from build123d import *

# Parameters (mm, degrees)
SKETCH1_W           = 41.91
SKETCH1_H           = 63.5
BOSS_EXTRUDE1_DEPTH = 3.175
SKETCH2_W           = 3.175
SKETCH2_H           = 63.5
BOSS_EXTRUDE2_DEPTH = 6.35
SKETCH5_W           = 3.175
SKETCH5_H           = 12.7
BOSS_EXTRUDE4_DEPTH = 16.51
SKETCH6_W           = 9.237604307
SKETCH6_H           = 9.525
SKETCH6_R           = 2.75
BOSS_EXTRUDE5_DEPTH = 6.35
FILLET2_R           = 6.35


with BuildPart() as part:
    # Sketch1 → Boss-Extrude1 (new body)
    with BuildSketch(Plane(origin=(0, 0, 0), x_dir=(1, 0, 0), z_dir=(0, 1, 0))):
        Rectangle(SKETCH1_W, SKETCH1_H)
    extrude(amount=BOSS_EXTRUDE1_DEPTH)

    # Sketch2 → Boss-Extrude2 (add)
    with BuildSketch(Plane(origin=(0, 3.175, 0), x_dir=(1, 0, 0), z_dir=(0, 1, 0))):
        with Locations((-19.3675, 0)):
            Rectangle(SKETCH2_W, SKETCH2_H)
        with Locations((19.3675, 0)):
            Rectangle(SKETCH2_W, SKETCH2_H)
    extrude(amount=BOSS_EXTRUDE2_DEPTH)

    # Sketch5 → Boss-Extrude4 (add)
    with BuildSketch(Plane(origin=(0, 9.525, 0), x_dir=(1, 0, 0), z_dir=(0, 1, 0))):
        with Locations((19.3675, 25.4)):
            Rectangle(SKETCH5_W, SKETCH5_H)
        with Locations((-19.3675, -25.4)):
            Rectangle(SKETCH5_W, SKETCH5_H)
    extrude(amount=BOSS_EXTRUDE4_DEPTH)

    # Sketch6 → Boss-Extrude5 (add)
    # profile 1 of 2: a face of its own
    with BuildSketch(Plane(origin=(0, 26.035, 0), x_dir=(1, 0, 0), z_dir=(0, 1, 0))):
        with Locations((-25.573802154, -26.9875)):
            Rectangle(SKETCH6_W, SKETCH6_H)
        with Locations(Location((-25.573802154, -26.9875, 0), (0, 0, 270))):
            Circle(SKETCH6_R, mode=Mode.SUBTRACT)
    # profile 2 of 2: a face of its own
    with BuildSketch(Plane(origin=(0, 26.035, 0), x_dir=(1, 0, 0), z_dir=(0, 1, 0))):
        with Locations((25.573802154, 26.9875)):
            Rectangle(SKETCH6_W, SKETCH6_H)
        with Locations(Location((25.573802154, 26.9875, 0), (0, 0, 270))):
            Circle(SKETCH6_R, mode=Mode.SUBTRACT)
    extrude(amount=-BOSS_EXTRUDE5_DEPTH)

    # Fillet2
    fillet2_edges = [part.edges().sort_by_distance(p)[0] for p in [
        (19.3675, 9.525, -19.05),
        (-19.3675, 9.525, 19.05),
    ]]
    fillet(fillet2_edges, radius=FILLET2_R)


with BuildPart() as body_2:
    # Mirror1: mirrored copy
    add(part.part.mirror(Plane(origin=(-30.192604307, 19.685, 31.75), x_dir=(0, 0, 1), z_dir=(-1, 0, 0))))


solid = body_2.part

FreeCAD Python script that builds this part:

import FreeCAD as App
import Part
import Sketcher
from FreeCAD import Vector
Q = App.Units.Quantity


def edges_at(feature, points):
    """Names of the edges that pass closest to the given points."""
    edges = feature.Shape.Edges
    near = lambda p: min(range(len(edges)), key=lambda i: edges[i].distToShape(Part.Vertex(*p))[0])
    return sorted({f"Edge{near(p) + 1}" for p in points})


def add_polygon(sketch, points):
    """Adds a closed chain of lines whose ends are joined by coincident constraints."""
    first, n = sketch.GeometryCount, len(points)
    for a, b in zip(points, points[1:] + points[:1]):
        sketch.addGeometry(Part.LineSegment(App.Vector(*a, 0), App.Vector(*b, 0)), False)
    for i in range(n):
        sketch.addConstraint(Sketcher.Constraint("Coincident", first + i, 2, first + (i + 1) % n, 1))

doc = App.newDocument("Part")
body = doc.addObject("PartDesign::Body", "Body")

# Sketch on XZ plane
sketch1 = body.newObject("Sketcher::SketchObject", "Sketch")
sketch1.AttachmentSupport = (doc.getObject("XZ_Plane"), [""])
sketch1.MapMode = "FlatFace"
add_polygon(sketch1, [(-20.955, -31.75), (-20.955, 31.75), (20.955, 31.75), (20.955, -31.75)])  # lines 0-3
sketch1.addConstraint([
    Sketcher.Constraint("Vertical", 0),
    Sketcher.Constraint("Horizontal", 1),
    Sketcher.Constraint("Vertical", 2),
    Sketcher.Constraint("Horizontal", 3),
    Sketcher.Constraint("Symmetric", 0, 2, 2, 2, -1, 1),
    Sketcher.Constraint("DistanceY", 0, 1, 0, 2, Q("2.5 in")),
    Sketcher.Constraint("DistanceX", 1, 1, 1, 2, Q("1.65 in")),
])
pad1 = body.newObject("PartDesign::Pad", "Pad")
pad1.Profile = sketch1
pad1.Length = Q("0.125 in")
pad1.Reversed = True

# Sketch on XZ plane
sketch2 = body.newObject("Sketcher::SketchObject", "Sketch001")
sketch2.AttachmentSupport = (doc.getObject("XZ_Plane"), [""])
sketch2.MapMode = "FlatFace"
sketch2.AttachmentOffset = App.Placement(Vector(0, 0, -0.125 * 25.4), App.Rotation())
add_polygon(sketch2, [(-20.955, -31.75), (-20.955, 31.75), (-17.78, 31.75), (-17.78, -31.75)])  # lines 0-3
add_polygon(sketch2, [(17.78, -31.75), (17.78, 31.75), (20.955, 31.75), (20.955, -31.75)])  # lines 4-7
sketch2.addConstraint([
    Sketcher.Constraint("Vertical", 0),
    Sketcher.Constraint("Horizontal", 1),
    Sketcher.Constraint("Vertical", 2),
    Sketcher.Constraint("Horizontal", 3),
    Sketcher.Constraint("Vertical", 4),
    Sketcher.Constraint("Horizontal", 5),
    Sketcher.Constraint("Vertical", 6),
    Sketcher.Constraint("Horizontal", 7),
    Sketcher.Constraint("Symmetric", 2, 2, 4, 2, -1, 1),
    Sketcher.Constraint("Symmetric", 0, 2, 6, 2, -1, 1),
    Sketcher.Constraint("Horizontal", 1, 2, 4, 2),
    Sketcher.Constraint("DistanceY", 0, 1, 0, 2, Q("2.5 in")),
    Sketcher.Constraint("DistanceX", 1, 2, -1, 1, Q("0.7 in")),
    Sketcher.Constraint("DistanceX", 1, 1, 1, 2, Q("0.125 in")),
])
pad2 = body.newObject("PartDesign::Pad", "Pad001")
pad2.Profile = sketch2
pad2.Length = Q("0.25 in")
pad2.Reversed = True

# Sketch on XZ plane
sketch3 = body.newObject("Sketcher::SketchObject", "Sketch002")
sketch3.AttachmentSupport = (doc.getObject("XZ_Plane"), [""])
sketch3.MapMode = "FlatFace"
sketch3.AttachmentOffset = App.Placement(Vector(0, 0, -0.375 * 25.4), App.Rotation())
add_polygon(sketch3, [(17.78, -31.75), (17.78, -19.05), (20.955, -19.05), (20.955, -31.75)])  # lines 0-3
add_polygon(sketch3, [(-20.955, 19.05), (-20.955, 31.75), (-17.78, 31.75), (-17.78, 19.05)])  # lines 4-7
sketch3.addConstraint([
    Sketcher.Constraint("Vertical", 0),
    Sketcher.Constraint("Horizontal", 1),
    Sketcher.Constraint("Vertical", 2),
    Sketcher.Constraint("Horizontal", 3),
    Sketcher.Constraint("Vertical", 4),
    Sketcher.Constraint("Horizontal", 5),
    Sketcher.Constraint("Vertical", 6),
    Sketcher.Constraint("Horizontal", 7),
    Sketcher.Constraint("Symmetric", 2, 2, 4, 2, -1, 1),
    Sketcher.Constraint("Symmetric", 0, 2, 6, 2, -1, 1),
    Sketcher.Constraint("DistanceY", 0, 1, 0, 2, Q("0.5 in")),
    Sketcher.Constraint("DistanceY", 0, 2, 4, 2, Q("2 in")),
    Sketcher.Constraint("DistanceX", -1, 1, 0, 2, Q("0.7 in")),
    Sketcher.Constraint("DistanceX", 1, 1, 1, 2, Q("0.125 in")),
])
pad3 = body.newObject("PartDesign::Pad", "Pad002")
pad3.Profile = sketch3
pad3.Length = Q("0.65 in")
pad3.Reversed = True

# Sketch on XZ plane
sketch4 = body.newObject("Sketcher::SketchObject", "Sketch003")
sketch4.AttachmentSupport = (doc.getObject("XZ_Plane"), [""])
sketch4.MapMode = "FlatFace"
sketch4.AttachmentOffset = App.Placement(Vector(0, 0, -1.025 * 25.4), App.Rotation())
add_polygon(sketch4, [(-30.192604, 22.225), (-30.192604, 31.75), (-20.955, 31.75), (-20.955, 22.225)])  # lines 0-3
sketch4.addGeometry(Part.Circle(Vector(-25.573802, 26.9875, 0), Vector(0, 0, 1), 2.75), False)  # 4
add_polygon(sketch4, [(20.955, -31.75), (20.955, -22.225), (30.192604, -22.225), (30.192604, -31.75)])  # lines 5-8
sketch4.addGeometry(Part.Circle(Vector(25.573802, -26.9875, 0), Vector(0, 0, 1), 2.75), False)  # 9
sketch4.addConstraint([
    Sketcher.Constraint("Vertical", 0),
    Sketcher.Constraint("Horizontal", 1),
    Sketcher.Constraint("Vertical", 2),
    Sketcher.Constraint("Horizontal", 3),
    Sketcher.Constraint("Vertical", 5),
    Sketcher.Constraint("Horizontal", 6),
    Sketcher.Constraint("Vertical", 7),
    Sketcher.Constraint("Horizontal", 8),
    Sketcher.Constraint("Equal", 4, 9),
    Sketcher.Constraint("Symmetric", 4, 3, 9, 3, -1, 1),
    Sketcher.Constraint("Symmetric", 2, 2, 5, 2, -1, 1),
    Sketcher.Constraint("Symmetric", 0, 2, 7, 2, -1, 1),
    Sketcher.Constraint("Diameter", 4, Q("5.5 mm")),
    Sketcher.Constraint("DistanceY", 0, 1, 0, 2, Q("0.375 in")),
    Sketcher.Constraint("DistanceY", -1, 1, 0, 2, Q("1.25 in")),
    Sketcher.Constraint("DistanceX", 2, 2, 5, 2, Q("1.65 in")),
    Sketcher.Constraint("DistanceY", -1, 1, 4, 3, Q("1.0625 in")),
    Sketcher.Constraint("DistanceX", 1, 1, 1, 2, Q("9.237604 mm")),
    Sketcher.Constraint("DistanceX", 4, 3, -1, 1, Q("25.573802 mm")),
])
pad4 = body.newObject("PartDesign::Pad", "Pad003")
pad4.Profile = sketch4
pad4.Length = Q("0.25 in")
doc.recompute()

fillet = body.newObject("PartDesign::Fillet", "Fillet")
fillet.Base = (pad4, edges_at(pad4, [(19.367, 9.525, -19.05), (-19.367, 9.525, 19.05)]))
fillet.Radius = Q("0.25 in")
body2 = doc.addObject("PartDesign::Body", "Body001")
doc.recompute()

mirroring = doc.addObject("Part::Mirroring", "Mirroring")
mirroring.Source = body
mirroring.Base = Vector(-30.192604, 19.685, 31.75)
mirroring.Normal = Vector(-1, 0, 0)
body2.BaseFeature = mirroring
doc.recompute()
body.Visibility = False
mirroring.Visibility = False

doc.recompute()
